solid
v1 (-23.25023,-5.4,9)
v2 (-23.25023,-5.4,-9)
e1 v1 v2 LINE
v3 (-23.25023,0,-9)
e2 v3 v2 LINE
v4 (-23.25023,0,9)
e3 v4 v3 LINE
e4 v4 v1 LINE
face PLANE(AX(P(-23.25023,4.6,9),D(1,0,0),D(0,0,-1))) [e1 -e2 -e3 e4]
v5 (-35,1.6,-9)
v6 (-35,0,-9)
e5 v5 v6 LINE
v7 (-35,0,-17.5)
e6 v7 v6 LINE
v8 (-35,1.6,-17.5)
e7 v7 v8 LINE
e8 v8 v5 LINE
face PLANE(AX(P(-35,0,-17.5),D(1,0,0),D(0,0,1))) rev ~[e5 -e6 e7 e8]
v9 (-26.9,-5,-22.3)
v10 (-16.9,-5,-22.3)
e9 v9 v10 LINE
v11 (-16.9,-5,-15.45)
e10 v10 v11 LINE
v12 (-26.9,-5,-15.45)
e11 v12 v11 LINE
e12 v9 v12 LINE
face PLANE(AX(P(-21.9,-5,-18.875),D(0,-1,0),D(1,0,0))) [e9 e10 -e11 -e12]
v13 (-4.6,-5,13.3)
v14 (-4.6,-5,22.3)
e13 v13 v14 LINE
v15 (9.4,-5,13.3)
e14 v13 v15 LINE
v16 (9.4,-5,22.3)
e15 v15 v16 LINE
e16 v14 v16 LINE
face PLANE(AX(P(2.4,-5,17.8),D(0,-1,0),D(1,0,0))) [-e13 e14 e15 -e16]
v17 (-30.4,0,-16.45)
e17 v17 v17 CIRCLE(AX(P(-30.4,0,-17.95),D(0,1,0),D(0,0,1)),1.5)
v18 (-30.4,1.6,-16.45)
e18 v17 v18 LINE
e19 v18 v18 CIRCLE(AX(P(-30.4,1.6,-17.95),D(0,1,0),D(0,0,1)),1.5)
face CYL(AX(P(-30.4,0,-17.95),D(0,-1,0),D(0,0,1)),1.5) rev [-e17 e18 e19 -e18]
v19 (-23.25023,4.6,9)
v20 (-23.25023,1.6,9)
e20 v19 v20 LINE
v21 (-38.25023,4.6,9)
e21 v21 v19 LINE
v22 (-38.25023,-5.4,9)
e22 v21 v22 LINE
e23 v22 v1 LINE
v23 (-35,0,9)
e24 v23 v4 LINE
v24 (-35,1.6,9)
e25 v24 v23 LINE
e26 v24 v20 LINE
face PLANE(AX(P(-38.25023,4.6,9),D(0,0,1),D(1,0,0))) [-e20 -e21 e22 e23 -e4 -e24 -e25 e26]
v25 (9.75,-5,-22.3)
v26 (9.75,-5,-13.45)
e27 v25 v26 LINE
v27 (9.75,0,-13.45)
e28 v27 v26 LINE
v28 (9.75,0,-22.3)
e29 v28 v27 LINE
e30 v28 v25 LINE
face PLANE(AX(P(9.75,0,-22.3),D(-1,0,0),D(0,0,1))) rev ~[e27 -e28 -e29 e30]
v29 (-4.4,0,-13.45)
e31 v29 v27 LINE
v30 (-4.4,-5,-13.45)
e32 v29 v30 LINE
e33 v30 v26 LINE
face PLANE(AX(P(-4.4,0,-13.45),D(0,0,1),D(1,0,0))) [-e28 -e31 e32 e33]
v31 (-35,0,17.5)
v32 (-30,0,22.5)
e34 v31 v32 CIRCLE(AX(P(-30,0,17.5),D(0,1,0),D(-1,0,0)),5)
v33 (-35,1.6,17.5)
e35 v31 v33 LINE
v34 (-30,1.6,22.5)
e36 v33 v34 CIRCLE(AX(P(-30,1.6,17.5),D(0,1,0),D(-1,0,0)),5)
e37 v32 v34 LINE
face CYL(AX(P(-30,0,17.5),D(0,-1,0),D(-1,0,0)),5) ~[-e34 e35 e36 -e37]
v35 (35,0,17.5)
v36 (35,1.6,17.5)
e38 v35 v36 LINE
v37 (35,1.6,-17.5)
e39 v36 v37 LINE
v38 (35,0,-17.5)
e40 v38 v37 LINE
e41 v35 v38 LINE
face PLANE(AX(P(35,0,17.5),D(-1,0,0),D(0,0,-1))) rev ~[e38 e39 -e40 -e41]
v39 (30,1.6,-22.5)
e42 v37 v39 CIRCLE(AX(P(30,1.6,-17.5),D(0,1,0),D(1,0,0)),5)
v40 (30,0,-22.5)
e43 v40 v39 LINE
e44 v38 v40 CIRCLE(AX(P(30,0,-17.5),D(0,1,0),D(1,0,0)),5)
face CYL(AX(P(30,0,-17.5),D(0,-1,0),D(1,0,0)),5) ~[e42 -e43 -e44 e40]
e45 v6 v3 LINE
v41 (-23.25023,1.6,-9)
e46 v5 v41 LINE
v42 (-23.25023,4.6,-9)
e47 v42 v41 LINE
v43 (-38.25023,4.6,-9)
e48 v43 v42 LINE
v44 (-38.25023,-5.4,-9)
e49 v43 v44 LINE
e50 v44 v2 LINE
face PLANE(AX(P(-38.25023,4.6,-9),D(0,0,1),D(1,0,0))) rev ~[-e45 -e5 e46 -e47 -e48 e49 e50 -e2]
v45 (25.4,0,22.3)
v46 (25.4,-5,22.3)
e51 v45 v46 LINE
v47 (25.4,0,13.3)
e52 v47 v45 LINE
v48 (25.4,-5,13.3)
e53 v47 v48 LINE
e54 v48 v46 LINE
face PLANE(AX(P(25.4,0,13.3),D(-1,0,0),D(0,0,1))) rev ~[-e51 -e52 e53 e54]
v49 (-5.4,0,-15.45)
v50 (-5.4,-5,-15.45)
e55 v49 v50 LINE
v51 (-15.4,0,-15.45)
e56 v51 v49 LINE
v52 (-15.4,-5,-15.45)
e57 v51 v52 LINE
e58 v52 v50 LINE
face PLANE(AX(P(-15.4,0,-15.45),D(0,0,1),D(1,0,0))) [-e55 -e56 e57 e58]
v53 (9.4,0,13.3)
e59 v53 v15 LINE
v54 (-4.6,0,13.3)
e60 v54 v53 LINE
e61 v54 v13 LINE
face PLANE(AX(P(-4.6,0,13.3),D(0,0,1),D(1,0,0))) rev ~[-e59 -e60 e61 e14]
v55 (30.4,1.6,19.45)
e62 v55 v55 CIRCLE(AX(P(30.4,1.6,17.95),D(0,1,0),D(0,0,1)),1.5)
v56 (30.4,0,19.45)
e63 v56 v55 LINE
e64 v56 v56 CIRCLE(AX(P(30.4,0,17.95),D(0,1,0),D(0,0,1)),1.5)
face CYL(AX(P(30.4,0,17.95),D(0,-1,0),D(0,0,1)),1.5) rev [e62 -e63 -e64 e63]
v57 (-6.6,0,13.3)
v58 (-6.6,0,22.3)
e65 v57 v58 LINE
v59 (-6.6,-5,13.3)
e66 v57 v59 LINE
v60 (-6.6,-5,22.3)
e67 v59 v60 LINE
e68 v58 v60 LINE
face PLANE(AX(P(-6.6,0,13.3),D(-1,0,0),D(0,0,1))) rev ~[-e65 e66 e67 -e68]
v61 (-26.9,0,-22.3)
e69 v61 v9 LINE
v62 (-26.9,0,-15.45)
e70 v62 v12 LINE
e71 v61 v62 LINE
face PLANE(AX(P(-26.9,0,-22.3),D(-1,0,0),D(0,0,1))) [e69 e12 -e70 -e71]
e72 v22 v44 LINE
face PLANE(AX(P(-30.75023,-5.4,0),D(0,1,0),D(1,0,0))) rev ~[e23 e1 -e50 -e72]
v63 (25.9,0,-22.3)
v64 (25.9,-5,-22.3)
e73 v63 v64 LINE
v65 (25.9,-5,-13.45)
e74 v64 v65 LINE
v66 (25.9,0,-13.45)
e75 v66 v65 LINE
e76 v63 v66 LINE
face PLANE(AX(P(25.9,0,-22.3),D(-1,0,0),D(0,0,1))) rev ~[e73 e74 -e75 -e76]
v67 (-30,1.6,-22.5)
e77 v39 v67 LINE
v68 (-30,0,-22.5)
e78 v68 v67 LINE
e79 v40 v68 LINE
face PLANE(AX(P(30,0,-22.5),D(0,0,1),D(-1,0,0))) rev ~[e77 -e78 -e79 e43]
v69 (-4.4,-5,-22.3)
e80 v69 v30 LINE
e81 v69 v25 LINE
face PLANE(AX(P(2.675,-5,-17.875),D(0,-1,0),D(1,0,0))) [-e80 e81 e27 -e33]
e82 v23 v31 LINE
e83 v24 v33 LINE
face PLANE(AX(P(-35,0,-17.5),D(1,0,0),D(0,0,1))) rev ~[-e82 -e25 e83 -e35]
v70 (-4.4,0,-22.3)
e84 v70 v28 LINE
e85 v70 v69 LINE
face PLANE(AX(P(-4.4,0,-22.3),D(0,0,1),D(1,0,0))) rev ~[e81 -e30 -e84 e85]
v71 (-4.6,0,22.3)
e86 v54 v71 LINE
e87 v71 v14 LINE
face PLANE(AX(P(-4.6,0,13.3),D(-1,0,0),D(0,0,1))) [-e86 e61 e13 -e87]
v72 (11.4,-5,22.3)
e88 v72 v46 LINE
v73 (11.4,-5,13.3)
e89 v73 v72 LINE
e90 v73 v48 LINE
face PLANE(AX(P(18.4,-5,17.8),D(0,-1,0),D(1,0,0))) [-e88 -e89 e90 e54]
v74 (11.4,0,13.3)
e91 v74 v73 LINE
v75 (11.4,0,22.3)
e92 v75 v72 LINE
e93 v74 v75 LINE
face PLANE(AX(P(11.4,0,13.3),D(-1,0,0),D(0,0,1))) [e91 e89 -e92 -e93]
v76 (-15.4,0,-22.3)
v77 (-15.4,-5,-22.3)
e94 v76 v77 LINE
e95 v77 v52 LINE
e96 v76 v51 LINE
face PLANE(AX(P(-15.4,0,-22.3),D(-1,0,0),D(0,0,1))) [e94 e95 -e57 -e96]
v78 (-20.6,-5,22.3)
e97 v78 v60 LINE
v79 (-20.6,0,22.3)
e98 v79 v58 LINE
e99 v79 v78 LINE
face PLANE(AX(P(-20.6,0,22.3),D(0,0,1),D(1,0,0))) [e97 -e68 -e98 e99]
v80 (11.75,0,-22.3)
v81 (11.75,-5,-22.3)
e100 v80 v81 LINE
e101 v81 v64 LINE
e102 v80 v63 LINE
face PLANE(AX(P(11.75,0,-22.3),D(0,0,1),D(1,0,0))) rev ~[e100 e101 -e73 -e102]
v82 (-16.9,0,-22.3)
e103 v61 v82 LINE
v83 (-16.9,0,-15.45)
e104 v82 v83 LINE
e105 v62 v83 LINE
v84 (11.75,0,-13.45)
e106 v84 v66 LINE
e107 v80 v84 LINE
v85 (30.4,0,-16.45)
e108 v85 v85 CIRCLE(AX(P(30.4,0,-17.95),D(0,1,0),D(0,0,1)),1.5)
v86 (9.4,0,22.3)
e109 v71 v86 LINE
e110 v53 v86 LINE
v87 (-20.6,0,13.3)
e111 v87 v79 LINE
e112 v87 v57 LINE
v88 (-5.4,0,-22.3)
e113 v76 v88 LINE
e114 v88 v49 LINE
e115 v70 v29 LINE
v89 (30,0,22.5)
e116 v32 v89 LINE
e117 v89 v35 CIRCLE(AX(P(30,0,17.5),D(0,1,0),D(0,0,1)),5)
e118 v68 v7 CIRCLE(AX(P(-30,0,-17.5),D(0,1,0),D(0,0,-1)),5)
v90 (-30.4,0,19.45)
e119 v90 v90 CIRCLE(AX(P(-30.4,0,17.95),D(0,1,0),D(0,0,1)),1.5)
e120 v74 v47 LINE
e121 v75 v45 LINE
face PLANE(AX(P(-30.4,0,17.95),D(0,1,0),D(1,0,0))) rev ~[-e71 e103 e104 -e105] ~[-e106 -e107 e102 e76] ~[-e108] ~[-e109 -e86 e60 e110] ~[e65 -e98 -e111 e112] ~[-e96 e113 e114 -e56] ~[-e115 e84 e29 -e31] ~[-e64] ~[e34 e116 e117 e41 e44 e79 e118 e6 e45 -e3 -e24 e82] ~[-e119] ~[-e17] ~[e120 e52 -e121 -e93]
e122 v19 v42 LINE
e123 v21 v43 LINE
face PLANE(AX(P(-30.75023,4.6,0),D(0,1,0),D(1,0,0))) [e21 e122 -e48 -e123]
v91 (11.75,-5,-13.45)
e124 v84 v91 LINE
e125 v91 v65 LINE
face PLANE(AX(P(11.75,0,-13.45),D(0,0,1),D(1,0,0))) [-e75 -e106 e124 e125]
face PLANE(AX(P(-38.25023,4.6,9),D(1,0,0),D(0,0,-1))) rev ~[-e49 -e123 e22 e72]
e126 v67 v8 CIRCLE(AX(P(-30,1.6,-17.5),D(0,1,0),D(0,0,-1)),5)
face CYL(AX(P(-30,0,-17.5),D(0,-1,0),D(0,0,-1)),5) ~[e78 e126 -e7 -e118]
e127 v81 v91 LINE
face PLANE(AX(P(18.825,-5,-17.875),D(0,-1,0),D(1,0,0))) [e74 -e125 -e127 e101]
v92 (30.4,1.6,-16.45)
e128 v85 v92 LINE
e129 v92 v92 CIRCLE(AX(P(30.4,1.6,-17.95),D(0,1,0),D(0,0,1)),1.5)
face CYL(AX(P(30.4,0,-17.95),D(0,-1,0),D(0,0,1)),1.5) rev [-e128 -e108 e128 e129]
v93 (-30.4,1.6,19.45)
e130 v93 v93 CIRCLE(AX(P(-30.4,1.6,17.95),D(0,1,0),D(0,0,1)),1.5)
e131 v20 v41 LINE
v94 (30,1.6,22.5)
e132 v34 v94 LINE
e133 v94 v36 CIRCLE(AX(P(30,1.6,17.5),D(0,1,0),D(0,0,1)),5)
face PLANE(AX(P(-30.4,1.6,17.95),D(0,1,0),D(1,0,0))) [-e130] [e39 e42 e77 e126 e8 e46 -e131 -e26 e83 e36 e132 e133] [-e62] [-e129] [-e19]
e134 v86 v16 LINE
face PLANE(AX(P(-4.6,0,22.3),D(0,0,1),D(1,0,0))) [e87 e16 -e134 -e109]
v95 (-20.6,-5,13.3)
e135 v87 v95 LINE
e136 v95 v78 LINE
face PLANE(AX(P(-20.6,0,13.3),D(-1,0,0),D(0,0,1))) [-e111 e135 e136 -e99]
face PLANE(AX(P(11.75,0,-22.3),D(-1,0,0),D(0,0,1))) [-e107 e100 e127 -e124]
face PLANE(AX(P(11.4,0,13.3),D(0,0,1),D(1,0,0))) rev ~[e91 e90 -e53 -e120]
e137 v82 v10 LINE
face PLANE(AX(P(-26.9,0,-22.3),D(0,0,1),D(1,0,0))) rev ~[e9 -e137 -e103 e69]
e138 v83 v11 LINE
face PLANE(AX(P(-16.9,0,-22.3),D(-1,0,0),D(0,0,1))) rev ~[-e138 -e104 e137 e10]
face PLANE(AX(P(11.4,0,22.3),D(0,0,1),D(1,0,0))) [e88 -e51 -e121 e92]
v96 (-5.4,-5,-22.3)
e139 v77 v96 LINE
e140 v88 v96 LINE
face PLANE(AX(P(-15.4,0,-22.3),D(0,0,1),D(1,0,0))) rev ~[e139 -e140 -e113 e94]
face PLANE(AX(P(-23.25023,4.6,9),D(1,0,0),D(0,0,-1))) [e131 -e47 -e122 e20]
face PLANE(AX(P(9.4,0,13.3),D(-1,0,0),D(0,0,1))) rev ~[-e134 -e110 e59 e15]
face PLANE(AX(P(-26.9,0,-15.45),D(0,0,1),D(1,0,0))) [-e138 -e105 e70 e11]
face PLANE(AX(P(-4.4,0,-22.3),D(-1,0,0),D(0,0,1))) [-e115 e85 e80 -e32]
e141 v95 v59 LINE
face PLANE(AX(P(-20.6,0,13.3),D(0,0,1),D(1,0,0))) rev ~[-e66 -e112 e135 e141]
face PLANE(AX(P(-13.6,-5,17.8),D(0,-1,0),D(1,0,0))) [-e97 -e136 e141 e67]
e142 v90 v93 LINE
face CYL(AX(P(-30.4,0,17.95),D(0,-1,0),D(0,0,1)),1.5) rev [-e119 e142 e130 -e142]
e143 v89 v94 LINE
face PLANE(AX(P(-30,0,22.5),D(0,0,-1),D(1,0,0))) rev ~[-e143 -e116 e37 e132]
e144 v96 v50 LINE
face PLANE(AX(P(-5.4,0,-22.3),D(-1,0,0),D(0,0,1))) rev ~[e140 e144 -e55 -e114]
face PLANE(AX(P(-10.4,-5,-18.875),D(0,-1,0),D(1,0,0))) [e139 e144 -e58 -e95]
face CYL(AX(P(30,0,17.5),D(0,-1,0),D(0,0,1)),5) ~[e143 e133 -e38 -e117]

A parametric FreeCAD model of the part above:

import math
import FreeCAD as App
import Part
import Sketcher
from FreeCAD import Vector

doc = App.newDocument("Part")
body = doc.addObject("PartDesign::Body", "Body")

# Sketch on XZ plane
sketch1 = body.newObject("Sketcher::SketchObject", "Sketch")
sketch1.AttachmentSupport = (doc.getObject("XZ_Plane"), [""])
sketch1.MapMode = "FlatFace"
sketch1.addGeometry([
    Part.LineSegment(Vector(-35, -17.5, 0), Vector(-35, 17.5, 0)),  # 0
    Part.ArcOfCircle(Part.Circle(Vector(-30, 17.5, 0), Vector(0, 0, 1), 5), math.radians(90), math.radians(180)),  # 1
    Part.LineSegment(Vector(-30, 22.5, 0), Vector(30, 22.5, 0)),  # 2
    Part.ArcOfCircle(Part.Circle(Vector(30, 17.5, 0), Vector(0, 0, 1), 5), math.radians(0), math.radians(90)),  # 3
    Part.LineSegment(Vector(35, 17.5, 0), Vector(35, -17.5, 0)),  # 4
    Part.ArcOfCircle(Part.Circle(Vector(30, -17.5, 0), Vector(0, 0, 1), 5), math.radians(-90), math.radians(0)),  # 5
    Part.LineSegment(Vector(30, -22.5, 0), Vector(-30, -22.5, 0)),  # 6
    Part.ArcOfCircle(Part.Circle(Vector(-30, -17.5, 0), Vector(0, 0, 1), 5), math.radians(180), math.radians(270)),  # 7
    Part.Circle(Vector(-30.4, 17.95, 0), Vector(0, 0, 1), 2.5),  # 8
    Part.Circle(Vector(30.4, 17.95, 0), Vector(0, 0, 1), 2.5),  # 9
    Part.Circle(Vector(-30.4, -17.95, 0), Vector(0, 0, 1), 2.5),  # 10
    Part.Circle(Vector(30.4, -17.95, 0), Vector(0, 0, 1), 2.5),  # 11
], False)
sketch1.addConstraint([
    Sketcher.Constraint("Tangent", 0, 2, 1, 2),
    Sketcher.Constraint("Tangent", 1, 1, 2, 1),
    Sketcher.Constraint("Tangent", 2, 2, 3, 2),
    Sketcher.Constraint("Tangent", 3, 1, 4, 1),
    Sketcher.Constraint("Tangent", 4, 2, 5, 2),
    Sketcher.Constraint("Tangent", 5, 1, 6, 1),
    Sketcher.Constraint("Tangent", 6, 2, 7, 2),
    Sketcher.Constraint("Tangent", 7, 1, 0, 1),
    Sketcher.Constraint("Vertical", 0),
    Sketcher.Constraint("Horizontal", 2),
    Sketcher.Constraint("Vertical", 4),
    Sketcher.Constraint("Horizontal", 6),
    Sketcher.Constraint("Equal", 1, 3),
    Sketcher.Constraint("Equal", 3, 5),
    Sketcher.Constraint("Equal", 5, 7),
    Sketcher.Constraint("Equal", 8, 9),
    Sketcher.Constraint("Equal", 9, 10),
    Sketcher.Constraint("Equal", 10, 11),
    Sketcher.Constraint("Symmetric", 1, 3, 5, 3, -1, 1),
    Sketcher.Constraint("Symmetric", 9, 3, 10, 3, -1, 1),
    Sketcher.Constraint("Symmetric", 8, 3, 11, 3, -1, 1),
    Sketcher.Constraint("Symmetric", 8, 3, 9, 3, -2),
    Sketcher.Constraint("Diameter", 8, 5.0),
    Sketcher.Constraint("Radius", 1, 5.0),
    Sketcher.Constraint("DistanceX", 2, 1, 2, 2, 60.0),
    Sketcher.Constraint("DistanceY", 0, 1, 0, 2, 35.0),
    Sketcher.Constraint("DistanceX", 8, 3, -1, 1, 30.4),
    Sketcher.Constraint("DistanceY", 10, 3, 8, 3, 35.9),
])
pad1 = body.newObject("PartDesign::Pad", "Pad")
pad1.Profile = sketch1
pad1.Length = 1.6
pad1.Reversed = True

# Sketch on XZ plane
sketch2 = body.newObject("Sketcher::SketchObject", "Sketch001")
sketch2.AttachmentSupport = (doc.getObject("XZ_Plane"), [""])
sketch2.MapMode = "FlatFace"
sketch2.AttachmentOffset = App.Placement(Vector(0, 0, -4.6), App.Rotation())
sketch2.addGeometry([
    Part.LineSegment(Vector(-38.25023, -9, 0), Vector(-38.25023, 9, 0)),
    Part.LineSegment(Vector(-38.25023, 9, 0), Vector(-23.25023, 9, 0)),
    Part.LineSegment(Vector(-23.25023, 9, 0), Vector(-23.25023, -9, 0)),
    Part.LineSegment(Vector(-23.25023, -9, 0), Vector(-38.25023, -9, 0)),
], False)
sketch2.addConstraint([
    Sketcher.Constraint("Coincident", 0, 2, 1, 1),
    Sketcher.Constraint("Coincident", 1, 2, 2, 1),
    Sketcher.Constraint("Coincident", 2, 2, 3, 1),
    Sketcher.Constraint("Coincident", 3, 2, 0, 1),
    Sketcher.Constraint("Vertical", 0),
    Sketcher.Constraint("Horizontal", 1),
    Sketcher.Constraint("Vertical", 2),
    Sketcher.Constraint("Horizontal", 3),
    Sketcher.Constraint("DistanceX", 1, 1, 1, 2, 15.0),
    Sketcher.Constraint("DistanceY", 0, 1, 0, 2, 18.0),
    Sketcher.Constraint("DistanceY", -1, 1, 0, 2, 9.0),
    Sketcher.Constraint("DistanceX", 0, 2, -1, 1, 38.25023),
])
pad2 = body.newObject("PartDesign::Pad", "Pad001")
pad2.Profile = sketch2
pad2.Length = 10

# Sketch on XZ plane
sketch3 = body.newObject("Sketcher::SketchObject", "Sketch002")
sketch3.AttachmentSupport = (doc.getObject("XZ_Plane"), [""])
sketch3.MapMode = "FlatFace"
sketch3.addGeometry([
    Part.LineSegment(Vector(-26.9, -15.45, 0), Vector(-26.9, -22.3, 0)),  # 0
    Part.LineSegment(Vector(-26.9, -22.3, 0), Vector(-16.9, -22.3, 0)),  # 1
    Part.LineSegment(Vector(-16.9, -22.3, 0), Vector(-16.9, -15.45, 0)),  # 2
    Part.LineSegment(Vector(-16.9, -15.45, 0), Vector(-26.9, -15.45, 0)),  # 3
    Part.LineSegment(Vector(-15.4, -15.45, 0), Vector(-15.4, -22.3, 0)),  # 4
    Part.LineSegment(Vector(-15.4, -22.3, 0), Vector(-5.4, -22.3, 0)),  # 5
    Part.LineSegment(Vector(-5.4, -22.3, 0), Vector(-5.4, -15.45, 0)),  # 6
    Part.LineSegment(Vector(-5.4, -15.45, 0), Vector(-15.4, -15.45, 0)),  # 7
    Part.LineSegment(Vector(-4.4, -13.45, 0), Vector(-4.4, -22.3, 0)),  # 8
    Part.LineSegment(Vector(-4.4, -22.3, 0), Vector(9.75, -22.3, 0)),  # 9
    Part.LineSegment(Vector(9.75, -22.3, 0), Vector(9.75, -13.45, 0)),  # 10
    Part.LineSegment(Vector(9.75, -13.45, 0), Vector(-4.4, -13.45, 0)),  # 11
    Part.LineSegment(Vector(11.75, -13.45, 0), Vector(11.75, -22.3, 0)),  # 12
    Part.LineSegment(Vector(11.75, -22.3, 0), Vector(25.9, -22.3, 0)),  # 13
    Part.LineSegment(Vector(25.9, -22.3, 0), Vector(25.9, -13.45, 0)),  # 14
    Part.LineSegment(Vector(25.9, -13.45, 0), Vector(11.75, -13.45, 0)),  # 15
    Part.LineSegment(Vector(-20.6, 22.3, 0), Vector(-20.6, 13.3, 0)),  # 16
    Part.LineSegment(Vector(-20.6, 13.3, 0), Vector(-6.6, 13.3, 0)),  # 17
    Part.LineSegment(Vector(-6.6, 13.3, 0), Vector(-6.6, 22.3, 0)),  # 18
    Part.LineSegment(Vector(-6.6, 22.3, 0), Vector(-20.6, 22.3, 0)),  # 19
    Part.LineSegment(Vector(-4.6, 22.3, 0), Vector(-4.6, 13.3, 0)),  # 20
    Part.LineSegment(Vector(-4.6, 13.3, 0), Vector(9.4, 13.3, 0)),  # 21
    Part.LineSegment(Vector(9.4, 13.3, 0), Vector(9.4, 22.3, 0)),  # 22
    Part.LineSegment(Vector(9.4, 22.3, 0), Vector(-4.6, 22.3, 0)),  # 23
    Part.LineSegment(Vector(11.4, 22.3, 0), Vector(11.4, 13.3, 0)),  # 24
    Part.LineSegment(Vector(11.4, 13.3, 0), Vector(25.4, 13.3, 0)),  # 25
    Part.LineSegment(Vector(25.4, 13.3, 0), Vector(25.4, 22.3, 0)),  # 26
    Part.LineSegment(Vector(25.4, 22.3, 0), Vector(11.4, 22.3, 0)),  # 27
], False)
sketch3.addConstraint([
    Sketcher.Constraint("Coincident", 0, 2, 1, 1),
    Sketcher.Constraint("Coincident", 1, 2, 2, 1),
    Sketcher.Constraint("Coincident", 2, 2, 3, 1),
    Sketcher.Constraint("Coincident", 3, 2, 0, 1),
    Sketcher.Constraint("Coincident", 4, 2, 5, 1),
    Sketcher.Constraint("Coincident", 5, 2, 6, 1),
    Sketcher.Constraint("Coincident", 6, 2, 7, 1),
    Sketcher.Constraint("Coincident", 7, 2, 4, 1),
    Sketcher.Constraint("Coincident", 8, 2, 9, 1),
    Sketcher.Constraint("Coincident", 9, 2, 10, 1),
    Sketcher.Constraint("Coincident", 10, 2, 11, 1),
    Sketcher.Constraint("Coincident", 11, 2, 8, 1),
    Sketcher.Constraint("Coincident", 12, 2, 13, 1),
    Sketcher.Constraint("Coincident", 13, 2, 14, 1),
    Sketcher.Constraint("Coincident", 14, 2, 15, 1),
    Sketcher.Constraint("Coincident", 15, 2, 12, 1),
    Sketcher.Constraint("Coincident", 16, 2, 17, 1),
    Sketcher.Constraint("Coincident", 17, 2, 18, 1),
    Sketcher.Constraint("Coincident", 18, 2, 19, 1),
    Sketcher.Constraint("Coincident", 19, 2, 16, 1),
    Sketcher.Constraint("Coincident", 20, 2, 21, 1),
    Sketcher.Constraint("Coincident", 21, 2, 22, 1),
    Sketcher.Constraint("Coincident", 22, 2, 23, 1),
    Sketcher.Constraint("Coincident", 23, 2, 20, 1),
    Sketcher.Constraint("Coincident", 24, 2, 25, 1),
    Sketcher.Constraint("Coincident", 25, 2, 26, 1),
    Sketcher.Constraint("Coincident", 26, 2, 27, 1),
    Sketcher.Constraint("Coincident", 27, 2, 24, 1),
    Sketcher.Constraint("Vertical", 0),
    Sketcher.Constraint("Horizontal", 1),
    Sketcher.Constraint("Vertical", 2),
    Sketcher.Constraint("Horizontal", 3),
    Sketcher.Constraint("Vertical", 4),
    Sketcher.Constraint("Horizontal", 5),
    Sketcher.Constraint("Vertical", 6),
    Sketcher.Constraint("Horizontal", 7),
    Sketcher.Constraint("Vertical", 8),
    Sketcher.Constraint("Horizontal", 9),
    Sketcher.Constraint("Vertical", 10),
    Sketcher.Constraint("Horizontal", 11),
    Sketcher.Constraint("Vertical", 12),
    Sketcher.Constraint("Horizontal", 13),
    Sketcher.Constraint("Vertical", 14),
    Sketcher.Constraint("Horizontal", 15),
    Sketcher.Constraint("Vertical", 16),
    Sketcher.Constraint("Horizontal", 17),
    Sketcher.Constraint("Vertical", 18),
    Sketcher.Constraint("Horizontal", 19),
    Sketcher.Constraint("Vertical", 20),
    Sketcher.Constraint("Horizontal", 21),
    Sketcher.Constraint("Vertical", 22),
    Sketcher.Constraint("Horizontal", 23),
    Sketcher.Constraint("Vertical", 24),
    Sketcher.Constraint("Horizontal", 25),
    Sketcher.Constraint("Vertical", 26),
    Sketcher.Constraint("Horizontal", 27),
    Sketcher.Constraint("Horizontal", 1, 2, 4, 2),
    Sketcher.Constraint("Horizontal", 3, 2, 6, 2),
    Sketcher.Constraint("Horizontal", 5, 2, 8, 2),
    Sketcher.Constraint("Horizontal", 9, 2, 12, 2),
    Sketcher.Constraint("Horizontal", 11, 2, 14, 2),
    Sketcher.Constraint("Horizontal", 17, 2, 20, 2),
    Sketcher.Constraint("Horizontal", 19, 2, 22, 2),
    Sketcher.Constraint("Horizontal", 21, 2, 24, 2),
    Sketcher.Constraint("Horizontal", 23, 2, 26, 2),
    Sketcher.Constraint("Equal", 3, 5),
    Sketcher.Constraint("Equal", 11, 13),
    Sketcher.Constraint("Equal", 19, 21),
    Sketcher.Constraint("Equal", 23, 25),
    Sketcher.Constraint("DistanceX", 1, 1, 1, 2, 10.0),
    Sketcher.Constraint("DistanceX", 17, 1, 17, 2, 14.0),
    Sketcher.Constraint("DistanceY", 16, 2, 16, 1, 9.0),
    Sketcher.Constraint("DistanceX", 5, 2, 8, 2, 1.0),
    Sketcher.Constraint("DistanceY", 6, 2, 10, 2, 2.0),
    Sketcher.Constraint("DistanceX", 9, 2, 12, 2, 2.0),
    Sketcher.Constraint("DistanceX", 17, 2, 20, 2, 2.0),
    Sketcher.Constraint("DistanceX", 21, 2, 24, 2, 2.0),
    Sketcher.Constraint("DistanceX", 9, 1, 9, 2, 14.15),
    Sketcher.Constraint("DistanceY", 0, 2, 0, 1, 6.85),
    Sketcher.Constraint("DistanceX", 0, 2, -1, 1, 26.9),
    Sketcher.Constraint("DistanceY", 0, 2, -1, 1, 22.3),
    Sketcher.Constraint("DistanceX", 4, 2, -1, 1, 15.4),
    Sketcher.Constraint("DistanceX", 16, 2, -1, 1, 20.6),
    Sketcher.Constraint("DistanceY", -1, 1, 16, 2, 13.3),
])
pad3 = body.newObject("PartDesign::Pad", "Pad002")
pad3.Profile = sketch3
pad3.Length = 5

# Sketch on XZ plane
sketch4 = body.newObject("Sketcher::SketchObject", "Sketch003")
sketch4.AttachmentSupport = (doc.getObject("XZ_Plane"), [""])
sketch4.MapMode = "FlatFace"
sketch4.addGeometry([
    Part.Circle(Vector(-30.4, 17.95, 0), Vector(0, 0, 1), 2.5),  # 0
    Part.Circle(Vector(-30.4, 17.95, 0), Vector(0, 0, 1), 1.5),  # 1
    Part.Circle(Vector(-30.4, -17.95, 0), Vector(0, 0, 1), 2.5),  # 2
    Part.Circle(Vector(-30.4, -17.95, 0), Vector(0, 0, 1), 1.5),  # 3
    Part.Circle(Vector(30.4, -17.95, 0), Vector(0, 0, 1), 2.5),  # 4
    Part.Circle(Vector(30.4, -17.95, 0), Vector(0, 0, 1), 1.5),  # 5
    Part.Circle(Vector(30.4, 17.95, 0), Vector(0, 0, 1), 2.5),  # 6
    Part.Circle(Vector(30.4, 17.95, 0), Vector(0, 0, 1), 1.5),  # 7
], False)
sketch4.addConstraint([
    Sketcher.Constraint("Coincident", 1, 3, 0, 3),
    Sketcher.Constraint("Coincident", 3, 3, 2, 3),
    Sketcher.Constraint("Coincident", 5, 3, 4, 3),
    Sketcher.Constraint("Coincident", 7, 3, 6, 3),
    Sketcher.Constraint("Equal", 0, 2),
    Sketcher.Constraint("Equal", 1, 3),
    Sketcher.Constraint("Equal", 2, 4),
    Sketcher.Constraint("Equal", 3, 5),
    Sketcher.Constraint("Equal", 4, 6),
    Sketcher.Constraint("Equal", 5, 7),
    Sketcher.Constraint("Symmetric", 0, 3, 4, 3, -1, 1),
    Sketcher.Constraint("Symmetric", 2, 3, 6, 3, -1, 1),
    Sketcher.Constraint("Symmetric", 2, 3, 4, 3, -2),
    Sketcher.Constraint("Diameter", 0, 5.0),
    Sketcher.Constraint("Diameter", 1, 3.0),
    Sketcher.Constraint("DistanceX", 0, 3, -1, 1, 30.4),
    Sketcher.Constraint("DistanceY", 2, 3, 0, 3, 35.9),
])
pad4 = body.newObject("PartDesign::Pad", "Pad003")
pad4.Profile = sketch4
pad4.Length = 1.6
pad4.Reversed = True

doc.recompute()
